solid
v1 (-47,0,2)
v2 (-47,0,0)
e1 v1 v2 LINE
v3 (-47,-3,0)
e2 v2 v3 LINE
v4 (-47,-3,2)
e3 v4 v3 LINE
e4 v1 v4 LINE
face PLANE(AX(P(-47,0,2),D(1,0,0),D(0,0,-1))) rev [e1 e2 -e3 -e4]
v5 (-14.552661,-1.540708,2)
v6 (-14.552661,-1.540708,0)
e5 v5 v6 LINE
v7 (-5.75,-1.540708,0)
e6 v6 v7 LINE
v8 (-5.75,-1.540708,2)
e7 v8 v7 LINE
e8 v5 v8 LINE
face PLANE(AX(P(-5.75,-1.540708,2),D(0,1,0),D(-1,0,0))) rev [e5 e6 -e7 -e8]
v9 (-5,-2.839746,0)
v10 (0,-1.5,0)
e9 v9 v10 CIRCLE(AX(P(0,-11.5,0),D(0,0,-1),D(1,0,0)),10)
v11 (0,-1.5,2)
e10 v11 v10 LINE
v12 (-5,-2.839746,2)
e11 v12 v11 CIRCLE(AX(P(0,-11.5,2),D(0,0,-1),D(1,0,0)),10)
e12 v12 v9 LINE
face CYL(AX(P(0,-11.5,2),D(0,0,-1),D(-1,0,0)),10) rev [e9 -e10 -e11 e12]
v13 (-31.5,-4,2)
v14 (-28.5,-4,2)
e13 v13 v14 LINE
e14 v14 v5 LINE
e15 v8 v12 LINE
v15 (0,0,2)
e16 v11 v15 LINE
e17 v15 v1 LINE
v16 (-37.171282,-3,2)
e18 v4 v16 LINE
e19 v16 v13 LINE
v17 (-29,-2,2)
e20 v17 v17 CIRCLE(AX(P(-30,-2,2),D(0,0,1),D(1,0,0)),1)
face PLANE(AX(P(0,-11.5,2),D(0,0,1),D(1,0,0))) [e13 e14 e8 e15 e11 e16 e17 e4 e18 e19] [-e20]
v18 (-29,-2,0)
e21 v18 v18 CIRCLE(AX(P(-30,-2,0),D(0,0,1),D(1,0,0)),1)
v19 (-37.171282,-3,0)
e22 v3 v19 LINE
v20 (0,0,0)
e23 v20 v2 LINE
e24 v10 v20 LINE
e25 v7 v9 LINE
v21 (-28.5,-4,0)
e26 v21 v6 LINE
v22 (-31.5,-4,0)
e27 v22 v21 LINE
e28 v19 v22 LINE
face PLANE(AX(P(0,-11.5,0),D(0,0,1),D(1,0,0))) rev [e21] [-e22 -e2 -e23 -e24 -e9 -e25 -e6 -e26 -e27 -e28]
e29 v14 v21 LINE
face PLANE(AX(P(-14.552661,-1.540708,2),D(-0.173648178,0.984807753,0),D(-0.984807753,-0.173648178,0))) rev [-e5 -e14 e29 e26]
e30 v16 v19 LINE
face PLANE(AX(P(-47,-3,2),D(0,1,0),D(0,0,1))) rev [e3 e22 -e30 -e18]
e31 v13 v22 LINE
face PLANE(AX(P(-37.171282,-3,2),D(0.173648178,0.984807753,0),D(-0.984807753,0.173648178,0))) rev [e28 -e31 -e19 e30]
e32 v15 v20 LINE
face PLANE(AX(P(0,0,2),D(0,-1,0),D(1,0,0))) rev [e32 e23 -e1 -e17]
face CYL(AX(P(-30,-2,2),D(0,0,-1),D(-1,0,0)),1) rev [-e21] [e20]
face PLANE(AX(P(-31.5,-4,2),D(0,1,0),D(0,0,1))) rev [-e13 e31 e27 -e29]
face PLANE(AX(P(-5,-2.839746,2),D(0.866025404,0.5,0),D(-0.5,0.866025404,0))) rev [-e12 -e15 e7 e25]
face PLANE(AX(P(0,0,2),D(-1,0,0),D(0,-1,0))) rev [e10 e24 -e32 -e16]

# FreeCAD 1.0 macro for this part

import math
import FreeCAD as App
import Part
import Sketcher

V = App.Vector
Q = App.Units.Quantity

doc = App.newDocument("Part")
params = doc.addObject("Spreadsheet::Sheet", "Params")
for row, (alias, value) in enumerate([
    ("sketch1_diameter", "2 mm"),
    ("sketch1_radius", "10 mm"),
    ("sketch1_width", "47 mm"),
    ("sketch1_width2", "3 mm"),
    ("sketch1_height", "1.5 mm"),
    ("pad1_length", "2 mm"),
], start=1):
    params.set(f"A{row}", alias)
    params.set(f"B{row}", "=" + value)
    params.setAlias(f"B{row}", alias)

body = doc.addObject("PartDesign::Body", "Body")

sketch1 = body.newObject("Sketcher::SketchObject", "Sketch")
sketch1.AttachmentSupport = (doc.getObject("XY_Plane"), [""])
sketch1.MapMode = "FlatFace"
sketch1.addGeometry(Part.LineSegment(V(0, -1.5, 0), V(0, 0, 0)), False)
sketch1.addGeometry(Part.LineSegment(V(0, 0, 0), V(-47, 0, 0)), False)
sketch1.addGeometry(Part.LineSegment(V(-47, 0, 0), V(-47, -3, 0)), False)
sketch1.addGeometry(Part.LineSegment(V(-47, -3, 0), V(-37.2, -3, 0)), False)
sketch1.addGeometry(Part.LineSegment(V(-37.2, -3, 0), V(-31.5, -4, 0)), False)
sketch1.addGeometry(Part.LineSegment(V(-31.5, -4, 0), V(-28.5, -4, 0)), False)
sketch1.addGeometry(Part.LineSegment(V(-28.5, -4, 0), V(-14.6, -1.5, 0)), False)
sketch1.addGeometry(Part.LineSegment(V(-14.6, -1.5, 0), V(-5.8, -1.5, 0)), False)
sketch1.addGeometry(Part.LineSegment(V(-5.8, -1.5, 0), V(-5, -2.8, 0)), False)
sketch1.addGeometry(Part.ArcOfCircle(Part.Circle(V(0, -11.5, 0), V(0, 0, 1), 10), math.radians(90), math.radians(120)), False)
sketch1.addGeometry(Part.Circle(V(-30, -2, 0), V(0, 0, 1), 1), False)
sketch1.addConstraint(Sketcher.Constraint("Coincident", 0, 2, 1, 1))
sketch1.addConstraint(Sketcher.Constraint("Coincident", 1, 2, 2, 1))
sketch1.addConstraint(Sketcher.Constraint("Coincident", 2, 2, 3, 1))
sketch1.addConstraint(Sketcher.Constraint("Coincident", 3, 2, 4, 1))
sketch1.addConstraint(Sketcher.Constraint("Coincident", 4, 2, 5, 1))
sketch1.addConstraint(Sketcher.Constraint("Coincident", 5, 2, 6, 1))
sketch1.addConstraint(Sketcher.Constraint("Coincident", 6, 2, 7, 1))
sketch1.addConstraint(Sketcher.Constraint("Coincident", 7, 2, 8, 1))
sketch1.addConstraint(Sketcher.Constraint("Coincident", 8, 2, 9, 2))
sketch1.addConstraint(Sketcher.Constraint("Coincident", 9, 1, 0, 1))
sketch1.addConstraint(Sketcher.Constraint("Vertical", 0))
sketch1.addConstraint(Sketcher.Constraint("Horizontal", 1))
sketch1.addConstraint(Sketcher.Constraint("Vertical", 2))
sketch1.addConstraint(Sketcher.Constraint("Horizontal", 3))
sketch1.addConstraint(Sketcher.Constraint("Horizontal", 5))
sketch1.addConstraint(Sketcher.Constraint("Horizontal", 7))
sketch1.addConstraint(Sketcher.Constraint("Coincident", 0, 2, -1, 1))
sketch1.addConstraint(Sketcher.Constraint("PointOnObject", 9, 3, -2))
sketch1.addConstraint(Sketcher.Constraint("Equal", 5, 2))
sketch1.addConstraint(Sketcher.Constraint("Diameter", 10, 2.0))
sketch1.addConstraint(Sketcher.Constraint("Radius", 9, 10.0))
sketch1.addConstraint(Sketcher.Constraint("DistanceX", 1, 2, 1, 1, 47.0))
sketch1.addConstraint(Sketcher.Constraint("DistanceX", 5, 1, 5, 2, 3.0))
sketch1.addConstraint(Sketcher.Constraint("Angle", 4, Q("-10 deg")))
sketch1.addConstraint(Sketcher.Constraint("Angle", 6, Q("10 deg")))
sketch1.addConstraint(Sketcher.Constraint("Angle", 8, Q("-60 deg")))
sketch1.addConstraint(Sketcher.Constraint("DistanceY", 0, 1, 0, 2, 1.5))
sketch1.addConstraint(Sketcher.Constraint("DistanceX", 10, 3, -1, 1, 30.0))
sketch1.addConstraint(Sketcher.Constraint("DistanceY", 10, 3, -1, 1, 2.0))
sketch1.addConstraint(Sketcher.Constraint("DistanceY", 4, 2, -1, 1, 4.0))
sketch1.addConstraint(Sketcher.Constraint("DistanceX", 8, 2, -1, 1, 5.0))
sketch1.addConstraint(Sketcher.Constraint("Distance", 8, 1.5))
sketch1.addConstraint(Sketcher.Constraint("DistanceX", 4, 2, -1, 1, 31.5))
sketch1.setExpression("Constraints[19]", "Params.sketch1_diameter")
sketch1.setExpression("Constraints[20]", "Params.sketch1_radius")
sketch1.setExpression("Constraints[21]", "Params.sketch1_width")
sketch1.setExpression("Constraints[22]", "Params.sketch1_width2")
sketch1.setExpression("Constraints[26]", "Params.sketch1_height")
pad1 = body.newObject("PartDesign::Pad", "Pad")
pad1.Profile = sketch1
pad1.setExpression("Length", "Params.pad1_length")

doc.recompute()
